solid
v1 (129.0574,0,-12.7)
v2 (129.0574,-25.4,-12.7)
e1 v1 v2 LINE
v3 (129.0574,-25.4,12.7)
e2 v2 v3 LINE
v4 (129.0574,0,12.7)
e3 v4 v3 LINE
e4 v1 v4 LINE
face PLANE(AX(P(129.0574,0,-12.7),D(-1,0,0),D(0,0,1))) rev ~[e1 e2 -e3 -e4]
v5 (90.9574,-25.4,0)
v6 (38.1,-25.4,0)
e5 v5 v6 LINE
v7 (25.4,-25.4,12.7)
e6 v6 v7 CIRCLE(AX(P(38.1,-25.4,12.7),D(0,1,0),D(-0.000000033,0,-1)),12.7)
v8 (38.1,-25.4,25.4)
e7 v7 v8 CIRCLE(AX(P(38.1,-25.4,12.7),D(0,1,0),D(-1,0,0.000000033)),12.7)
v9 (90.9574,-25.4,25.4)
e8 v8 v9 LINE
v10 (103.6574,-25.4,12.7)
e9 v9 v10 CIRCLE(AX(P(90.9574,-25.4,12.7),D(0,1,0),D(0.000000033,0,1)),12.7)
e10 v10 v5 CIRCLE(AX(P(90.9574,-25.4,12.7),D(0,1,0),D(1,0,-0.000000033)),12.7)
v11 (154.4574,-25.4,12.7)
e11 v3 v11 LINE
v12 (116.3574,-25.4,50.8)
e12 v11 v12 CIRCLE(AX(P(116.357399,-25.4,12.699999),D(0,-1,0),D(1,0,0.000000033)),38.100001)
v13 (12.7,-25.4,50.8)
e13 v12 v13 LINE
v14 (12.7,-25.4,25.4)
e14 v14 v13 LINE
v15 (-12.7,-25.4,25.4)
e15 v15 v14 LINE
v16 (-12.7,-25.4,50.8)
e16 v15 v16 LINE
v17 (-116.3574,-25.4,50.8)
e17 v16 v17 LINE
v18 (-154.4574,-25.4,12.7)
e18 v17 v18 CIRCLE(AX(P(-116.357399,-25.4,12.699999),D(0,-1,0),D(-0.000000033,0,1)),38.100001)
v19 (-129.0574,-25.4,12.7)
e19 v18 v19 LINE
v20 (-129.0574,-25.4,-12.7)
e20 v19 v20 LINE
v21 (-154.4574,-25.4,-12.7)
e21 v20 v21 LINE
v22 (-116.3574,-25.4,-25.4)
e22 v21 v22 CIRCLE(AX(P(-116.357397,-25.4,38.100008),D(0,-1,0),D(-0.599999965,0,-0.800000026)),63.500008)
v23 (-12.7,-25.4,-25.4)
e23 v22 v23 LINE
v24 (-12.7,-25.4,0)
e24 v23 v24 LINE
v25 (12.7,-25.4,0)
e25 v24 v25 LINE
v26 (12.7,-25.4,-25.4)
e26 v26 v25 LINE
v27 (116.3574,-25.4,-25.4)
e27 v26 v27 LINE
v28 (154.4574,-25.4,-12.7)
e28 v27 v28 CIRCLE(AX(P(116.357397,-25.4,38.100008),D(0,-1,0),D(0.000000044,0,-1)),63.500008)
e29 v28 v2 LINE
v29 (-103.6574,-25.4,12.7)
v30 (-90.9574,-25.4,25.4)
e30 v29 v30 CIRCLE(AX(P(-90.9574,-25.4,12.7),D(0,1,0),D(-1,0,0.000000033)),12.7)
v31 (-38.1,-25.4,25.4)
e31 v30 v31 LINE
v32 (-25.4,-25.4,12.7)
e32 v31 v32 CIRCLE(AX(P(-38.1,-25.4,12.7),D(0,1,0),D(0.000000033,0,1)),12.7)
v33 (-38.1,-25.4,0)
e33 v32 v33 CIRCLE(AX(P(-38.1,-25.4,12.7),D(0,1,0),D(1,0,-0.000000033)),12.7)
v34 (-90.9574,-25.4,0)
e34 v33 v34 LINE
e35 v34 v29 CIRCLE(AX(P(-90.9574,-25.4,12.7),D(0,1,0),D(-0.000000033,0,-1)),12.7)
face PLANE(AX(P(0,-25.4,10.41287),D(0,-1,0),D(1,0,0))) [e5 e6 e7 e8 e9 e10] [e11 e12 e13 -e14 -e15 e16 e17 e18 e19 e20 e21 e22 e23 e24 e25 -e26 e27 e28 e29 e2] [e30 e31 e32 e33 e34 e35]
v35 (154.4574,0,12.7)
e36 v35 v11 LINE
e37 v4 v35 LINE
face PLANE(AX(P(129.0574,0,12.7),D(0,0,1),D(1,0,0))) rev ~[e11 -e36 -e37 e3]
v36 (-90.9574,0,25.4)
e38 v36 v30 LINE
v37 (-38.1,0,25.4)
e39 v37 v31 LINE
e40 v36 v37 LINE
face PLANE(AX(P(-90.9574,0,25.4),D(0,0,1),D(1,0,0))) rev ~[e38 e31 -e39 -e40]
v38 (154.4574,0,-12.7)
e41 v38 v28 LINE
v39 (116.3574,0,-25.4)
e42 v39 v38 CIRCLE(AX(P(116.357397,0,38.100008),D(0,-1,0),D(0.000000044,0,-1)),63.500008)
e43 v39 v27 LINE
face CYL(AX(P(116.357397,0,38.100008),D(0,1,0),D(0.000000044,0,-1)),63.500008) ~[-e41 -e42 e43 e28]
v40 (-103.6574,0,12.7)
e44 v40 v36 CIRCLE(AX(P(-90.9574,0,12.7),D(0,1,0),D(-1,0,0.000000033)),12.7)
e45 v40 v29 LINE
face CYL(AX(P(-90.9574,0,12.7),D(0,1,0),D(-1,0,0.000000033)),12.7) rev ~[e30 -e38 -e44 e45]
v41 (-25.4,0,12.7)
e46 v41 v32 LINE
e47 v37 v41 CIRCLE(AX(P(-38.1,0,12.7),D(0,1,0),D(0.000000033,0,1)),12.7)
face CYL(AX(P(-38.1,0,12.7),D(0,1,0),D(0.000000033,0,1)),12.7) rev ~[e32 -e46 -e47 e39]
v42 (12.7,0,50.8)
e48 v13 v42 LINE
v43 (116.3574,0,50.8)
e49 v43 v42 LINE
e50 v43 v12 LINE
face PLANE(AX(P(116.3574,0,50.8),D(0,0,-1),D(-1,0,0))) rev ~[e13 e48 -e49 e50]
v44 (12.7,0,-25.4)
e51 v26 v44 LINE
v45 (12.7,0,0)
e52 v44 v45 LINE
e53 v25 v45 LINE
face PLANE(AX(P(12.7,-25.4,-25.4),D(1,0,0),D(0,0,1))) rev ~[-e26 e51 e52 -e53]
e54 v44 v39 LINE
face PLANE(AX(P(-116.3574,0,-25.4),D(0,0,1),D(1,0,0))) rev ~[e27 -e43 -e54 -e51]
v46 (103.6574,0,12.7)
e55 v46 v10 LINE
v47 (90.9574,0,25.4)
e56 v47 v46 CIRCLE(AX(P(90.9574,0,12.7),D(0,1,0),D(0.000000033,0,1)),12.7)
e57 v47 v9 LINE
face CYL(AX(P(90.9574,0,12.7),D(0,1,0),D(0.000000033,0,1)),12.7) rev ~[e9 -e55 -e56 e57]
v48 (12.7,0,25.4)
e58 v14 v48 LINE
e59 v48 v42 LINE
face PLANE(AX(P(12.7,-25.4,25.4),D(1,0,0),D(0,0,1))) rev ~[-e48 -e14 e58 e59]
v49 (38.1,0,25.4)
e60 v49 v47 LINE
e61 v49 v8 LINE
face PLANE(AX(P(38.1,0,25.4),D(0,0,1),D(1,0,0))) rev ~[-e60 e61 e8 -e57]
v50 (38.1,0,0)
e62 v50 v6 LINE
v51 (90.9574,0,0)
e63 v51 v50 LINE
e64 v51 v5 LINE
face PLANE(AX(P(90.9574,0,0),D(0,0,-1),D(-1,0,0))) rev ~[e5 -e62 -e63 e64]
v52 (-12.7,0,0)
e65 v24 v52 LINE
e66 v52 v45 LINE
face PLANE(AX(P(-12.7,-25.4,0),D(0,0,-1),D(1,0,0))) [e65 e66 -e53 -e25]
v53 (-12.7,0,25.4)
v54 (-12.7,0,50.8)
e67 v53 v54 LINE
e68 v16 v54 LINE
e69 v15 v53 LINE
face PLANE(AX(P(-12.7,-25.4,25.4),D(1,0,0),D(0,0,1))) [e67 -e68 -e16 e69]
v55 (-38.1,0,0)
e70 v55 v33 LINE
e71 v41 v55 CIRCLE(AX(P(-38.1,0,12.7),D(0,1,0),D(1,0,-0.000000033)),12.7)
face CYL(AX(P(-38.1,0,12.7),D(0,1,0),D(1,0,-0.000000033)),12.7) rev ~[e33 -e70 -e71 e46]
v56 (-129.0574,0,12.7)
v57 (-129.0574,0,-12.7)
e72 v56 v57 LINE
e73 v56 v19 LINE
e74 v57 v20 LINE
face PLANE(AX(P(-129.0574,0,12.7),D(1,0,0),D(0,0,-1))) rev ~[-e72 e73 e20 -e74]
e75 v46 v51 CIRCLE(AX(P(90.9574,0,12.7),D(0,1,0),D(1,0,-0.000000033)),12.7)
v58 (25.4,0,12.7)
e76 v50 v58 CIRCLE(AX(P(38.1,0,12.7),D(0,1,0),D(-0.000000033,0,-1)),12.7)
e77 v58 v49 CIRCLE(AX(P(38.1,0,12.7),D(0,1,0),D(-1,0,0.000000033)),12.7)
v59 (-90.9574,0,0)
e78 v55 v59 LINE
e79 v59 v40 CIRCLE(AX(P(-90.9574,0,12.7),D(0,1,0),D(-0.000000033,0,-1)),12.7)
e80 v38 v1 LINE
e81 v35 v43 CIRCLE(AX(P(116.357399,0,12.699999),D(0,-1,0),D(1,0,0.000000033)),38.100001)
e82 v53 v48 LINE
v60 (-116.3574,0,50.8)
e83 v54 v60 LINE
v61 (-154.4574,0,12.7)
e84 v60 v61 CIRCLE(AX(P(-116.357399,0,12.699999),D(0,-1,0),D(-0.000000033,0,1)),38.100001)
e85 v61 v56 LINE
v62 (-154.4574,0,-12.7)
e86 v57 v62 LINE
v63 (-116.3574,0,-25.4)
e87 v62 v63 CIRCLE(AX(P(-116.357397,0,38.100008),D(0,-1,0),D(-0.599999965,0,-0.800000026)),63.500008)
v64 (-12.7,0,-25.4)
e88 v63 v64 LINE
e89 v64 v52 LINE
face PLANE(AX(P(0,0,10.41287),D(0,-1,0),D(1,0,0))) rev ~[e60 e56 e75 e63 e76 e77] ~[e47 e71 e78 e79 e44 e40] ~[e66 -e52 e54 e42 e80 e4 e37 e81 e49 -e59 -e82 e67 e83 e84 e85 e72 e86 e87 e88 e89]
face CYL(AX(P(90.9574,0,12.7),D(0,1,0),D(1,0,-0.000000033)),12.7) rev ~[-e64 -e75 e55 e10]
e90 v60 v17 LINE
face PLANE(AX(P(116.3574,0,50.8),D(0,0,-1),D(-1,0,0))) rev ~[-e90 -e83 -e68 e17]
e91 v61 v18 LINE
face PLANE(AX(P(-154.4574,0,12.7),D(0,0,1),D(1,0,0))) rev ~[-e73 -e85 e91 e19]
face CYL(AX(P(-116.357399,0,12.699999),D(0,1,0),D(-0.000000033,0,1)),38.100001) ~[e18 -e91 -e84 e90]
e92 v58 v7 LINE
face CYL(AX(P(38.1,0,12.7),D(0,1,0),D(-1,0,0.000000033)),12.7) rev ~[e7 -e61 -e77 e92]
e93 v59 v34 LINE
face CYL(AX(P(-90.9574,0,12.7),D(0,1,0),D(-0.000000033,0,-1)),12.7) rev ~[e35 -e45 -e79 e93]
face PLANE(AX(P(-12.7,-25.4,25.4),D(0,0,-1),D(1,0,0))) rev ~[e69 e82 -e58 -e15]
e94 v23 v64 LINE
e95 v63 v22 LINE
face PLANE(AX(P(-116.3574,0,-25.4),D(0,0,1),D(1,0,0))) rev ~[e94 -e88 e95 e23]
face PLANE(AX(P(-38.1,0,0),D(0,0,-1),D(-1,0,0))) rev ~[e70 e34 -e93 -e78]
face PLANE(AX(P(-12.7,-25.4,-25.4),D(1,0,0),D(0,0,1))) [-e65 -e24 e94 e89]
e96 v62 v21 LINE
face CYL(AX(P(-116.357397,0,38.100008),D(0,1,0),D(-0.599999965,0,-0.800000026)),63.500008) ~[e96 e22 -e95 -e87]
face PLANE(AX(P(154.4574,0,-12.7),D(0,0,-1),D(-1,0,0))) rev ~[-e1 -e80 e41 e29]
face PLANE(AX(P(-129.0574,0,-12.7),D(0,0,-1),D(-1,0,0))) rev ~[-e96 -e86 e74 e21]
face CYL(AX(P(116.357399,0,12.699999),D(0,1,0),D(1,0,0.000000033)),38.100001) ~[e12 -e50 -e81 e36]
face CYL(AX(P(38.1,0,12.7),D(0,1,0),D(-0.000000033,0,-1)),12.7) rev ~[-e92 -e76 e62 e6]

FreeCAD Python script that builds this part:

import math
import FreeCAD as App
import Part
import Sketcher
from FreeCAD import Vector
Q = App.Units.Quantity


def add_polygon(sketch, points):
    """Adds a closed chain of lines whose ends are joined by coincident constraints."""
    first, n = sketch.GeometryCount, len(points)
    for a, b in zip(points, points[1:] + points[:1]):
        sketch.addGeometry(Part.LineSegment(App.Vector(*a, 0), App.Vector(*b, 0)), False)
    for i in range(n):
        sketch.addConstraint(Sketcher.Constraint("Coincident", first + i, 2, first + (i + 1) % n, 1))

doc = App.newDocument("Part")
body = doc.addObject("PartDesign::Body", "Body")

# Sketch on XZ plane
sketch1 = doc.addObject("Sketcher::SketchObject", "Sketch")
body.addObject(sketch1)
sketch1.AttachmentSupport = (doc.XZ_Plane, [""])
sketch1.MapMode = "FlatFace"
sketch1.addGeometry([
    Part.LineSegment(Vector(-154, 13, 0), Vector(-129, 13, 0)),  # 0
    Part.LineSegment(Vector(-129, 13, 0), Vector(-129, -13, 0)),  # 1
    Part.LineSegment(Vector(-129, -13, 0), Vector(-154, -13, 0)),  # 2
    Part.ArcOfCircle(Part.Circle(Vector(-116, 38, 0), Vector(0, 0, 1), 64), math.radians(-127), math.radians(-90)),  # 3
    Part.LineSegment(Vector(-116, -25, 0), Vector(116, -25, 0)),  # 4
    Part.ArcOfCircle(Part.Circle(Vector(116, 38, 0), Vector(0, 0, 1), 64), math.radians(-90), math.radians(-53)),  # 5
    Part.LineSegment(Vector(154, -13, 0), Vector(129, -13, 0)),  # 6
    Part.LineSegment(Vector(129, -13, 0), Vector(129, 13, 0)),  # 7
    Part.LineSegment(Vector(129, 13, 0), Vector(154, 13, 0)),  # 8
    Part.ArcOfCircle(Part.Circle(Vector(116, 13, 0), Vector(0, 0, 1), 38), math.radians(0), math.radians(90)),  # 9
    Part.LineSegment(Vector(116, 51, 0), Vector(-116, 51, 0)),  # 10
    Part.ArcOfCircle(Part.Circle(Vector(-116, 13, 0), Vector(0, 0, 1), 38), math.radians(90), math.radians(180)),  # 11
    Part.ArcOfCircle(Part.Circle(Vector(38, 13, 0), Vector(0, 0, 1), 13), math.radians(90), math.radians(180)),  # 12
    Part.LineSegment(Vector(38, 25, 0), Vector(91, 25, 0)),  # 13
    Part.ArcOfCircle(Part.Circle(Vector(91, 13, 0), Vector(0, 0, 1), 13), math.radians(0), math.radians(90)),  # 14
    Part.ArcOfCircle(Part.Circle(Vector(91, 13, 0), Vector(0, 0, 1), 13), math.radians(-90), math.radians(0)),  # 15
    Part.LineSegment(Vector(91, 0, 0), Vector(38, 0, 0)),  # 16
    Part.ArcOfCircle(Part.Circle(Vector(38, 13, 0), Vector(0, 0, 1), 13), math.radians(-180), math.radians(-90)),  # 17
    Part.ArcOfCircle(Part.Circle(Vector(-91, 13, 0), Vector(0, 0, 1), 13), math.radians(-180), math.radians(-90)),  # 18
    Part.ArcOfCircle(Part.Circle(Vector(-91, 13, 0), Vector(0, 0, 1), 13), math.radians(90), math.radians(180)),  # 19
    Part.LineSegment(Vector(-91, 25, 0), Vector(-38, 25, 0)),  # 20
    Part.ArcOfCircle(Part.Circle(Vector(-38, 13, 0), Vector(0, 0, 1), 13), math.radians(0), math.radians(90)),  # 21
    Part.ArcOfCircle(Part.Circle(Vector(-38, 13, 0), Vector(0, 0, 1), 13), math.radians(-90), math.radians(0)),  # 22
    Part.LineSegment(Vector(-38, 0, 0), Vector(-91, 0, 0)),  # 23
], False)
sketch1.addConstraint([
    Sketcher.Constraint("Coincident", 0, 2, 1, 1),
    Sketcher.Constraint("Coincident", 1, 2, 2, 1),
    Sketcher.Constraint("Coincident", 2, 2, 3, 1),
    Sketcher.Constraint("Tangent", 3, 2, 4, 1),
    Sketcher.Constraint("Tangent", 4, 2, 5, 1),
    Sketcher.Constraint("Coincident", 5, 2, 6, 1),
    Sketcher.Constraint("Coincident", 6, 2, 7, 1),
    Sketcher.Constraint("Coincident", 7, 2, 8, 1),
    Sketcher.Constraint("Coincident", 8, 2, 9, 1),
    Sketcher.Constraint("Tangent", 9, 2, 10, 1),
    Sketcher.Constraint("Tangent", 10, 2, 11, 1),
    Sketcher.Constraint("Coincident", 11, 2, 0, 1),
    Sketcher.Constraint("Tangent", 12, 1, 13, 1),
    Sketcher.Constraint("Tangent", 13, 2, 14, 2),
    Sketcher.Constraint("Tangent", 14, 1, 15, 2),
    Sketcher.Constraint("Tangent", 15, 1, 16, 1),
    Sketcher.Constraint("Tangent", 16, 2, 17, 2),
    Sketcher.Constraint("Tangent", 17, 1, 12, 2),
    Sketcher.Constraint("Tangent", 18, 1, 19, 2),
    Sketcher.Constraint("Tangent", 19, 1, 20, 1),
    Sketcher.Constraint("Tangent", 20, 2, 21, 2),
    Sketcher.Constraint("Tangent", 21, 1, 22, 2),
    Sketcher.Constraint("Tangent", 22, 1, 23, 1),
    Sketcher.Constraint("Tangent", 23, 2, 18, 2),
    Sketcher.Constraint("Horizontal", 0),
    Sketcher.Constraint("Vertical", 1),
    Sketcher.Constraint("Horizontal", 2),
    Sketcher.Constraint("Horizontal", 4),
    Sketcher.Constraint("Horizontal", 6),
    Sketcher.Constraint("Vertical", 7),
    Sketcher.Constraint("Horizontal", 8),
    Sketcher.Constraint("Horizontal", 10),
    Sketcher.Constraint("Horizontal", 13),
    Sketcher.Constraint("Horizontal", 16),
    Sketcher.Constraint("Horizontal", 20),
    Sketcher.Constraint("Horizontal", 23),
    Sketcher.Constraint("Equal", 3, 5),
    Sketcher.Constraint("Equal", 9, 11),
    Sketcher.Constraint("Equal", 12, 14),
    Sketcher.Constraint("Equal", 14, 15),
    Sketcher.Constraint("Equal", 17, 18),
    Sketcher.Constraint("Equal", 18, 19),
    Sketcher.Constraint("Equal", 19, 21),
    Sketcher.Constraint("Symmetric", 0, 2, 6, 2, -1, 1),
    Sketcher.Constraint("Symmetric", 2, 2, 8, 2, -1, 1),
    Sketcher.Constraint("Symmetric", 16, 2, 22, 1, -1, 1),
    Sketcher.Constraint("Symmetric", 14, 3, 18, 3, -2),
    Sketcher.Constraint("Symmetric", 2, 2, 5, 2, -2),
    Sketcher.Constraint("Horizontal", 11, 3, 12, 3),
    Sketcher.Constraint("Horizontal", 22, 3, 0, 2),
    Sketcher.Constraint("Horizontal", 11, 2, 14, 1),
    Sketcher.Constraint("Horizontal", 14, 1, 17, 1),
    Sketcher.Constraint("Horizontal", 17, 1, 18, 1),
    Sketcher.Constraint("Horizontal", 18, 1, 21, 1),
    Sketcher.Constraint("Vertical", 5, 3, 9, 3),
    Sketcher.Constraint("Vertical", 3, 3, 11, 3),
    Sketcher.Constraint("Equal", 8, 1),
    Sketcher.Constraint("Radius", 9, Q("1.5 in")),
    Sketcher.Constraint("Radius", 12, Q("0.5 in")),
    Sketcher.Constraint("DistanceY", 3, 2, -1, 1, Q("1 in")),
    Sketcher.Constraint("DistanceX", -1, 1, 17, 1, Q("1 in")),
    Sketcher.Constraint("DistanceX", 14, 3, 9, 3, Q("1 in")),
    Sketcher.Constraint("DistanceX", 4, 1, 4, 2, Q("9.162 in")),
])
pad1 = doc.addObject("PartDesign::Pad", "Pad")
body.addObject(pad1)
pad1.Profile = sketch1
pad1.Length = Q("1 in")

# Sketch on XZ plane
sketch2 = doc.addObject("Sketcher::SketchObject", "Sketch001")
body.addObject(sketch2)
sketch2.AttachmentSupport = (doc.XZ_Plane, [""])
sketch2.MapMode = "FlatFace"
sketch2.AttachmentOffset = App.Placement(Vector(0, 0, 1 * 25.4), App.Rotation())
add_polygon(sketch2, [(-13, 51), (-13, 25), (13, 25), (13, 51)])  # lines 0-3
add_polygon(sketch2, [(-13, 0), (-13, -25), (13, -25), (13, 0)])  # lines 4-7
sketch2.addConstraint([
    Sketcher.Constraint("Vertical", 0),
    Sketcher.Constraint("Horizontal", 1),
    Sketcher.Constraint("Vertical", 2),
    Sketcher.Constraint("Horizontal", 3),
    Sketcher.Constraint("Vertical", 4),
    Sketcher.Constraint("Horizontal", 5),
    Sketcher.Constraint("Vertical", 6),
    Sketcher.Constraint("Horizontal", 7),
    Sketcher.Constraint("Symmetric", 1, 2, 4, 2, -1, 1),
    Sketcher.Constraint("Symmetric", 6, 2, 7, 2, -1, 1),
    Sketcher.Constraint("Vertical", 3, 2, 4, 2),
    Sketcher.Constraint("Equal", 7, 0),
    Sketcher.Constraint("Equal", 2, 4),
    Sketcher.Constraint("DistanceX", 1, 1, 1, 2, Q("1 in")),
])
pocket1 = doc.addObject("PartDesign::Pocket", "Pocket")
body.addObject(pocket1)
pocket1.Profile = sketch2
pocket1.Length = Q("1 in")

doc.recompute()
